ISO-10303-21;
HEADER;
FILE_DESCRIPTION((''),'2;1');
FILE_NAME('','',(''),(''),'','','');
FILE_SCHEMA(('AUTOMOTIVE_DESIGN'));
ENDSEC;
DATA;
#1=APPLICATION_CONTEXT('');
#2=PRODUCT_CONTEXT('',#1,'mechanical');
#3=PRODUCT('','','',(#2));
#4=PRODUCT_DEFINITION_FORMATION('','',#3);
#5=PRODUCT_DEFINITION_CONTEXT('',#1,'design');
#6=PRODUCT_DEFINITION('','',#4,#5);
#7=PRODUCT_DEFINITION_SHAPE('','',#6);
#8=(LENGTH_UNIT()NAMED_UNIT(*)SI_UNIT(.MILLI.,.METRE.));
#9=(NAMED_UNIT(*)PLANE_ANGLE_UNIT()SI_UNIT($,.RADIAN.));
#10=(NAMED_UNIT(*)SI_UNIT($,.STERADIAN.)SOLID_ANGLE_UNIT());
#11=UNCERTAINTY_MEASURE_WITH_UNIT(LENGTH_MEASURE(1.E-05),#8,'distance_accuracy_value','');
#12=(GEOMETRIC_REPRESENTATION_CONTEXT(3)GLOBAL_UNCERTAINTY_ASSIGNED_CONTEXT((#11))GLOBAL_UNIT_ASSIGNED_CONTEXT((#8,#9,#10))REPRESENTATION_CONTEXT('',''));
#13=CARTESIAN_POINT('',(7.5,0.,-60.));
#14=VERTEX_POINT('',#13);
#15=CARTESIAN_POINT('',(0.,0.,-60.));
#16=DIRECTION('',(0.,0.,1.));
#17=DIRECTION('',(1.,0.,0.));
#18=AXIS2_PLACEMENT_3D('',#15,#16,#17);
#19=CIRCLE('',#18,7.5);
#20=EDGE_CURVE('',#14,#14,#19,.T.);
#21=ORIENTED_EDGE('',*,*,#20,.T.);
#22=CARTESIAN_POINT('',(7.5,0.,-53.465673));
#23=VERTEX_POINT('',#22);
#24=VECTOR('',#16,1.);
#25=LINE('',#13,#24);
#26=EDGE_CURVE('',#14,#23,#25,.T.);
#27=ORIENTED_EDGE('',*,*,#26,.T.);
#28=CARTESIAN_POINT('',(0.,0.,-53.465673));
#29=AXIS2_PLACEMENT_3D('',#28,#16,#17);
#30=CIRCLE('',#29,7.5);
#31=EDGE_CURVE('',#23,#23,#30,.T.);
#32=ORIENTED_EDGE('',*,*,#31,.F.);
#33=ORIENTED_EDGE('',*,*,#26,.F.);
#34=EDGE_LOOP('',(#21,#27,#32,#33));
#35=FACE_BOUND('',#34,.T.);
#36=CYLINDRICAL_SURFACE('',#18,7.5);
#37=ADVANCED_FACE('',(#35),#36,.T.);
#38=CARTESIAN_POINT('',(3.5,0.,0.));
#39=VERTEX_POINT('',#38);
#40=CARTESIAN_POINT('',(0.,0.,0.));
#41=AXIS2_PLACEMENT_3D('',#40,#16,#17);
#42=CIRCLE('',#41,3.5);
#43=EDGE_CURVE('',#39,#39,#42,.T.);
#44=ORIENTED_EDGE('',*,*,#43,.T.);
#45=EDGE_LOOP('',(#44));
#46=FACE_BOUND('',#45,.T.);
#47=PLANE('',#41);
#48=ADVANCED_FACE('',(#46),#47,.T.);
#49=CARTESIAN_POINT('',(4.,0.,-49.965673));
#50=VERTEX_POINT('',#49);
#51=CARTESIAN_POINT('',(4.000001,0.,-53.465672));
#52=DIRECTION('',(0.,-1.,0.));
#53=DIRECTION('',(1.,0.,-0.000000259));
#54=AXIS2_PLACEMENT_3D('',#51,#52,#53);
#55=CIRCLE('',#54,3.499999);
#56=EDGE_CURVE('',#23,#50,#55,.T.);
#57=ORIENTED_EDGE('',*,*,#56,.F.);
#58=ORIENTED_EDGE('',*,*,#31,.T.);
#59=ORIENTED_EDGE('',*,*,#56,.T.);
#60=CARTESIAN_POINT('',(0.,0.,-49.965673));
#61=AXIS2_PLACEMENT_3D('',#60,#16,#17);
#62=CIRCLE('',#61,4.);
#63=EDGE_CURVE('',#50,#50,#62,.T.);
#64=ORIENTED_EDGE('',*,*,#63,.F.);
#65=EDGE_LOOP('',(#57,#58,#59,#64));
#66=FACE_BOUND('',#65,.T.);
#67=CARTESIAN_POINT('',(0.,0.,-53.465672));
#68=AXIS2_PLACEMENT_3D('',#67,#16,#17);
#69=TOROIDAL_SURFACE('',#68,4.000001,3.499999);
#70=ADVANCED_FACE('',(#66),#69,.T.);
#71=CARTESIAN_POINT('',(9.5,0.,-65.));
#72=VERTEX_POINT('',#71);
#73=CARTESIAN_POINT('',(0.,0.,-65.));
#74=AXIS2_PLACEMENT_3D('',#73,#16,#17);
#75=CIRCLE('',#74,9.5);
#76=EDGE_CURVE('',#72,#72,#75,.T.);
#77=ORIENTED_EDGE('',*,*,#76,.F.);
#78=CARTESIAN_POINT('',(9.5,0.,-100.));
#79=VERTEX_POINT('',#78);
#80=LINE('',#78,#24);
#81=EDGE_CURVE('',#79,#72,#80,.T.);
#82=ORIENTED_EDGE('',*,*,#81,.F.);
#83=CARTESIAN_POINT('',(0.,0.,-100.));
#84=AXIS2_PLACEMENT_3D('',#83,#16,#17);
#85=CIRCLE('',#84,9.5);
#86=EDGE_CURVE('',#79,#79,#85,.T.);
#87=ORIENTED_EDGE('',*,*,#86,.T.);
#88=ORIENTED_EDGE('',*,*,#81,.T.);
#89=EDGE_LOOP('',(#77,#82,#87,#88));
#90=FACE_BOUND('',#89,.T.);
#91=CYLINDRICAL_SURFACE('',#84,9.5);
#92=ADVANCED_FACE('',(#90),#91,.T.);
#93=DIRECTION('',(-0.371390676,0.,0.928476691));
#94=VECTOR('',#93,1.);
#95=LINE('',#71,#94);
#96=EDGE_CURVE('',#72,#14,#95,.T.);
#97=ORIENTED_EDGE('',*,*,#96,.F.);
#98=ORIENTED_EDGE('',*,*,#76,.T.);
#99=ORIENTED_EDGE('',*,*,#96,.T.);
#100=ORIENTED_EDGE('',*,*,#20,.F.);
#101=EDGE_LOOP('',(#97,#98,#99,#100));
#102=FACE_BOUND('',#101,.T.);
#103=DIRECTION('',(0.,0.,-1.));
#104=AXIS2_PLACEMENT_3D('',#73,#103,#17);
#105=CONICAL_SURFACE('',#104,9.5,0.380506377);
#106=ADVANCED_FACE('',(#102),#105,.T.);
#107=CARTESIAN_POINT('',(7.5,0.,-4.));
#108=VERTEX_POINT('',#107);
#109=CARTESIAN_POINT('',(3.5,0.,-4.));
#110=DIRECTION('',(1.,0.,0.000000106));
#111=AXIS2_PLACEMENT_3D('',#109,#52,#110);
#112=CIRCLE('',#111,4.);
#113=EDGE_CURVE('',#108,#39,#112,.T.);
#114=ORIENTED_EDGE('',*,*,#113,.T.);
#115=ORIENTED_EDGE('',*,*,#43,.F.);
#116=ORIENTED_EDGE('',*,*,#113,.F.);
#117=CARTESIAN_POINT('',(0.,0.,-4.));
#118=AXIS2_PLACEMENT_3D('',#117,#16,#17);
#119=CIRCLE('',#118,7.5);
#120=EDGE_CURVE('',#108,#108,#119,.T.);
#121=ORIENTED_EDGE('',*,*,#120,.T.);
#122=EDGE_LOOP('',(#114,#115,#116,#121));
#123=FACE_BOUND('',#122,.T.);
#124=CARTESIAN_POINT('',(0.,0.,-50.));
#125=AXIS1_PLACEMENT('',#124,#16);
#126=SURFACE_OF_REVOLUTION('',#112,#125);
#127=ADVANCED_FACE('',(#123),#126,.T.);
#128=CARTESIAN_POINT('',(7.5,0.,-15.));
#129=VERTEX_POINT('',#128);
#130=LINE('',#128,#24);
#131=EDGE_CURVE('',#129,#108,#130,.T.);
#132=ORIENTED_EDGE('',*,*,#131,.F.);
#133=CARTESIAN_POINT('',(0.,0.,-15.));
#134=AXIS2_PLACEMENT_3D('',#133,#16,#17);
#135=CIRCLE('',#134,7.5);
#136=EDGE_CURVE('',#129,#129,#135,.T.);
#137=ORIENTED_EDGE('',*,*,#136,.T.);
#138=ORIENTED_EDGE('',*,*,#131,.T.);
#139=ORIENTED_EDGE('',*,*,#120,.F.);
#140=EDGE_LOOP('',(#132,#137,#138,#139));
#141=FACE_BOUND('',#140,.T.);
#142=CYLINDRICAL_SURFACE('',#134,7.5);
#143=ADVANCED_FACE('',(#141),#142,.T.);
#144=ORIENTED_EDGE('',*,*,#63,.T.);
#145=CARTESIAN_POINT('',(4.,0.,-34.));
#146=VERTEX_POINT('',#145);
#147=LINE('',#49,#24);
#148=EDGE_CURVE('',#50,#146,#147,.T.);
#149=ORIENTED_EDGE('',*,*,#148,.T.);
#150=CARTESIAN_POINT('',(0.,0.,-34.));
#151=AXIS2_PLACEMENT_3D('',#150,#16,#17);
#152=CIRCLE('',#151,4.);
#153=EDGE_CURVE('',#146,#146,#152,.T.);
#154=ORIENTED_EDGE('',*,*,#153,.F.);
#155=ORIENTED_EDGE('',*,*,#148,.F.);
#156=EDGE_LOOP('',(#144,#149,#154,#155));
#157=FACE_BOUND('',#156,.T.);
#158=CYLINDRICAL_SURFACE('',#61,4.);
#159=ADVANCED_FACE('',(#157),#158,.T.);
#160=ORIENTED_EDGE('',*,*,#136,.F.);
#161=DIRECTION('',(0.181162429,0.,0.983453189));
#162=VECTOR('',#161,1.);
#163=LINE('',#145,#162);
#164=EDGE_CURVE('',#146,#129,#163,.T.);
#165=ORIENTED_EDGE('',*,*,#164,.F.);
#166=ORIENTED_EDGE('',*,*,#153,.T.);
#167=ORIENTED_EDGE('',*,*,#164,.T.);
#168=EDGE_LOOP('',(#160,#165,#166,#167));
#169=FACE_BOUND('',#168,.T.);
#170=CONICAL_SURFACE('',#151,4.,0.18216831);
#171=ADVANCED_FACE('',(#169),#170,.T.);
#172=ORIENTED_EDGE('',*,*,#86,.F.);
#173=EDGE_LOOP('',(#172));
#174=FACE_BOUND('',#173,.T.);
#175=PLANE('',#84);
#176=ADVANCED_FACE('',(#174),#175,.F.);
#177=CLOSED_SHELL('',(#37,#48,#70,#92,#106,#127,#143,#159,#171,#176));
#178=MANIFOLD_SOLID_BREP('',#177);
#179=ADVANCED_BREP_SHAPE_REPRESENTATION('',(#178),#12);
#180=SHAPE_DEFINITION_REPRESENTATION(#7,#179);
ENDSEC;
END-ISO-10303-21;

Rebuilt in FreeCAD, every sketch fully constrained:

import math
import FreeCAD as App
import Part
import Sketcher
from FreeCAD import Vector

doc = App.newDocument("Part")
body = doc.addObject("PartDesign::Body", "Body")

# Sketch on XZ plane
sketch1 = doc.addObject("Sketcher::SketchObject", "Sketch")
body.addObject(sketch1)
sketch1.AttachmentSupport = (doc.XZ_Plane, [""])
sketch1.MapMode = "FlatFace"
sketch1.addGeometry([
    Part.LineSegment(Vector(7.5, -15, 0), Vector(7.5, -4, 0)),  # 0
    Part.ArcOfCircle(Part.Circle(Vector(3.5, -4, 0), Vector(0, 0, 1), 4), math.radians(0), math.radians(90)),  # 1
    Part.LineSegment(Vector(3.5, 0, 0), Vector(0, 0, 0)),  # 2
    Part.LineSegment(Vector(0, 0, 0), Vector(0, -100, 0)),  # 3
    Part.LineSegment(Vector(0, -100, 0), Vector(9.5, -100, 0)),  # 4
    Part.LineSegment(Vector(9.5, -100, 0), Vector(9.5, -65, 0)),  # 5
    Part.LineSegment(Vector(9.5, -65, 0), Vector(7.5, -60, 0)),  # 6
    Part.LineSegment(Vector(7.5, -60, 0), Vector(7.5, -53.5, 0)),  # 7
    Part.ArcOfCircle(Part.Circle(Vector(4, -53.5, 0), Vector(0, 0, 1), 3.5), math.radians(0), math.radians(90)),  # 8
    Part.LineSegment(Vector(4, -50, 0), Vector(4, -34, 0)),  # 9
    Part.LineSegment(Vector(4, -34, 0), Vector(7.5, -15, 0)),  # 10
], False)
sketch1.addConstraint([
    Sketcher.Constraint("Tangent", 0, 2, 1, 1),
    Sketcher.Constraint("Tangent", 1, 2, 2, 1),
    Sketcher.Constraint("Coincident", 2, 2, 3, 1),
    Sketcher.Constraint("Coincident", 3, 2, 4, 1),
    Sketcher.Constraint("Coincident", 4, 2, 5, 1),
    Sketcher.Constraint("Coincident", 5, 2, 6, 1),
    Sketcher.Constraint("Coincident", 6, 2, 7, 1),
    Sketcher.Constraint("Tangent", 7, 2, 8, 1),
    Sketcher.Constraint("Coincident", 8, 2, 9, 1),
    Sketcher.Constraint("Coincident", 9, 2, 10, 1),
    Sketcher.Constraint("Coincident", 10, 2, 0, 1),
    Sketcher.Constraint("Vertical", 0),
    Sketcher.Constraint("Horizontal", 2),
    Sketcher.Constraint("Vertical", 3),
    Sketcher.Constraint("Horizontal", 4),
    Sketcher.Constraint("Vertical", 5),
    Sketcher.Constraint("Vertical", 7),
    Sketcher.Constraint("Vertical", 9),
    Sketcher.Constraint("Coincident", 2, 2, -1, 1),
    Sketcher.Constraint("Vertical", 0, 2, 6, 2),
    Sketcher.Constraint("Radius", 1, 4.0),
    Sketcher.Constraint("Radius", 8, 3.499999),
    Sketcher.Constraint("DistanceY", 0, 1, 0, 2, 11.0),
    Sketcher.Constraint("DistanceY", 3, 2, 3, 1, 100.0),
    Sketcher.Constraint("DistanceY", 5, 1, 5, 2, 35.0),
    Sketcher.Constraint("DistanceX", 2, 2, 2, 1, 3.5),
    Sketcher.Constraint("DistanceX", 4, 1, 4, 2, 9.5),
    Sketcher.Constraint("DistanceY", 6, 2, -1, 1, 60.0),
    Sketcher.Constraint("DistanceX", -1, 1, 8, 2, 4.0),
    Sketcher.Constraint("DistanceY", 9, 2, -1, 1, 34.0),
    Sketcher.Constraint("DistanceY", 7, 1, 7, 2, 6.534327),
])
revolution = doc.addObject("PartDesign::Revolution", "Revolution")
body.addObject(revolution)
revolution.Profile = sketch1
revolution.ReferenceAxis = (sketch1, ["V_Axis"])
revolution.Angle = 360

doc.recompute()
